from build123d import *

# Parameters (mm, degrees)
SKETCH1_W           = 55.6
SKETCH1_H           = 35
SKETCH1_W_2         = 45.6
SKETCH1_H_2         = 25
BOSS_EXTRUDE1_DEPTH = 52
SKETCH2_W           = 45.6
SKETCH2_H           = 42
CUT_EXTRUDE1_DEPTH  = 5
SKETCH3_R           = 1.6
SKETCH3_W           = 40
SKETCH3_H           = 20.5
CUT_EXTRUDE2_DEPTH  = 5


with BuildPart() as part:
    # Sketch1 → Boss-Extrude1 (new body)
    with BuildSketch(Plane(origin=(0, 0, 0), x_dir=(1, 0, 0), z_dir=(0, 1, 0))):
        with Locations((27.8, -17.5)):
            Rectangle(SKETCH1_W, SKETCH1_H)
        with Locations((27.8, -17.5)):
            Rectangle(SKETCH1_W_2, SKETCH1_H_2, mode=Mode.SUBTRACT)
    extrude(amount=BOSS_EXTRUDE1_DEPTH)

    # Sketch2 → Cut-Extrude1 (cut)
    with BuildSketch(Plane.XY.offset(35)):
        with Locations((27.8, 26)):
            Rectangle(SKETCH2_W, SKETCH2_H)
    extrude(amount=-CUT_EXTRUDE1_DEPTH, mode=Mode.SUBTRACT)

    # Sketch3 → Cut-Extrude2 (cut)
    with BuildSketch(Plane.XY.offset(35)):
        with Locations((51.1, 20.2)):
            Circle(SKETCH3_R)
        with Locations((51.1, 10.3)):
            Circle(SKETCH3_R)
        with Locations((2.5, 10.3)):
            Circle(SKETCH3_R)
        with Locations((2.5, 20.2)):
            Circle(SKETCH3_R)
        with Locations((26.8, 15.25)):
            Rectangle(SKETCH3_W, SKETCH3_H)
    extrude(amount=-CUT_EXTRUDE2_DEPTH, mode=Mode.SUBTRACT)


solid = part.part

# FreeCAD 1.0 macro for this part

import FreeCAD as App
import Part
import Sketcher

doc = App.newDocument("Part")
params = doc.addObject("Spreadsheet::Sheet", "Params")
for row, (alias, value) in enumerate([
    ("sketch1_height", "35 mm"),
    ("sketch1_height2", "25 mm"),
    ("sketch1_width", "55.6 mm"),
    ("sketch1_width2", "45.6 mm"),
    ("pad1_length", "52 mm"),
    ("sketch2_height", "42 mm"),
    ("sketch2_width", "45.6 mm"),
    ("pocket1_length", "5 mm"),
    ("sketch3_diameter", "3.2 mm"),
    ("sketch3_width", "40 mm"),
    ("sketch3_height", "20.5 mm"),
    ("pocket2_length", "5 mm"),
], start=1):
    params.set(f"A{row}", alias)
    params.set(f"B{row}", "=" + value)
    params.setAlias(f"B{row}", alias)

body = doc.addObject("PartDesign::Body", "Body")

# Sketch on XZ plane
sketch1 = body.newObject("Sketcher::SketchObject", "Sketch")
sketch1.AttachmentSupport = (doc.getObject("XZ_Plane"), [""])
sketch1.MapMode = "FlatFace"
sketch1.addGeometry(Part.LineSegment(App.Vector(0, 0, 0), App.Vector(0, 35, 0)), False)
sketch1.addGeometry(Part.LineSegment(App.Vector(0, 35, 0), App.Vector(56, 35, 0)), False)
sketch1.addGeometry(Part.LineSegment(App.Vector(56, 35, 0), App.Vector(56, 0, 0)), False)
sketch1.addGeometry(Part.LineSegment(App.Vector(56, 0, 0), App.Vector(0, 0, 0)), False)
sketch1.addGeometry(Part.LineSegment(App.Vector(51, 30, 0), App.Vector(5, 30, 0)), False)
sketch1.addGeometry(Part.LineSegment(App.Vector(5, 30, 0), App.Vector(5, 5, 0)), False)
sketch1.addGeometry(Part.LineSegment(App.Vector(5, 5, 0), App.Vector(51, 5, 0)), False)
sketch1.addGeometry(Part.LineSegment(App.Vector(51, 5, 0), App.Vector(51, 30, 0)), False)
sketch1.addConstraint(Sketcher.Constraint("Coincident", 0, 2, 1, 1))
sketch1.addConstraint(Sketcher.Constraint("Coincident", 1, 2, 2, 1))
sketch1.addConstraint(Sketcher.Constraint("Coincident", 2, 2, 3, 1))
sketch1.addConstraint(Sketcher.Constraint("Coincident", 3, 2, 0, 1))
sketch1.addConstraint(Sketcher.Constraint("Coincident", 4, 2, 5, 1))
sketch1.addConstraint(Sketcher.Constraint("Coincident", 5, 2, 6, 1))
sketch1.addConstraint(Sketcher.Constraint("Coincident", 6, 2, 7, 1))
sketch1.addConstraint(Sketcher.Constraint("Coincident", 7, 2, 4, 1))
sketch1.addConstraint(Sketcher.Constraint("Vertical", 0))
sketch1.addConstraint(Sketcher.Constraint("Horizontal", 1))
sketch1.addConstraint(Sketcher.Constraint("Vertical", 2))
sketch1.addConstraint(Sketcher.Constraint("Horizontal", 3))
sketch1.addConstraint(Sketcher.Constraint("Horizontal", 4))
sketch1.addConstraint(Sketcher.Constraint("Vertical", 5))
sketch1.addConstraint(Sketcher.Constraint("Horizontal", 6))
sketch1.addConstraint(Sketcher.Constraint("Vertical", 7))
sketch1.addConstraint(Sketcher.Constraint("Coincident", 3, 2, -1, 1))
sketch1.addConstraint(Sketcher.Constraint("DistanceY", 0, 1, 0, 2, 35.0))
sketch1.addConstraint(Sketcher.Constraint("DistanceY", 5, 2, 5, 1, 25.0))
sketch1.addConstraint(Sketcher.Constraint("DistanceX", 1, 1, 1, 2, 55.6))
sketch1.addConstraint(Sketcher.Constraint("DistanceX", 4, 2, 4, 1, 45.6))
sketch1.addConstraint(Sketcher.Constraint("DistanceX", -1, 1, 4, 2, 5.0))
sketch1.addConstraint(Sketcher.Constraint("DistanceY", -1, 1, 4, 2, 30.0))
sketch1.setExpression("Constraints[17]", "Params.sketch1_height")
sketch1.setExpression("Constraints[18]", "Params.sketch1_height2")
sketch1.setExpression("Constraints[19]", "Params.sketch1_width")
sketch1.setExpression("Constraints[20]", "Params.sketch1_width2")
pad1 = body.newObject("PartDesign::Pad", "Pad")
pad1.Profile = sketch1
pad1.setExpression("Length", "Params.pad1_length")
pad1.Reversed = True

# Sketch on XY plane
sketch2 = body.newObject("Sketcher::SketchObject", "Sketch001")
sketch2.AttachmentSupport = (doc.getObject("XY_Plane"), [""])
sketch2.MapMode = "FlatFace"
sketch2.AttachmentOffset = App.Placement(App.Vector(0, 0, 35), App.Rotation())
sketch2.addGeometry(Part.LineSegment(App.Vector(5, 47, 0), App.Vector(5, 5, 0)), False)
sketch2.addGeometry(Part.LineSegment(App.Vector(5, 5, 0), App.Vector(51, 5, 0)), False)
sketch2.addGeometry(Part.LineSegment(App.Vector(51, 5, 0), App.Vector(51, 47, 0)), False)
sketch2.addGeometry(Part.LineSegment(App.Vector(51, 47, 0), App.Vector(5, 47, 0)), False)
sketch2.addConstraint(Sketcher.Constraint("Coincident", 0, 2, 1, 1))
sketch2.addConstraint(Sketcher.Constraint("Coincident", 1, 2, 2, 1))
sketch2.addConstraint(Sketcher.Constraint("Coincident", 2, 2, 3, 1))
sketch2.addConstraint(Sketcher.Constraint("Coincident", 3, 2, 0, 1))
sketch2.addConstraint(Sketcher.Constraint("Vertical", 0))
sketch2.addConstraint(Sketcher.Constraint("Horizontal", 1))
sketch2.addConstraint(Sketcher.Constraint("Vertical", 2))
sketch2.addConstraint(Sketcher.Constraint("Horizontal", 3))
sketch2.addConstraint(Sketcher.Constraint("DistanceY", 0, 2, 0, 1, 42.0))
sketch2.addConstraint(Sketcher.Constraint("DistanceX", 1, 1, 1, 2, 45.6))
sketch2.addConstraint(Sketcher.Constraint("DistanceX", -1, 1, 0, 2, 5.0))
sketch2.addConstraint(Sketcher.Constraint("DistanceY", -1, 1, 0, 2, 5.0))
sketch2.setExpression("Constraints[8]", "Params.sketch2_height")
sketch2.setExpression("Constraints[9]", "Params.sketch2_width")
pocket1 = body.newObject("PartDesign::Pocket", "Pocket")
pocket1.Profile = sketch2
pocket1.setExpression("Length", "Params.pocket1_length")

# Sketch on XY plane
sketch3 = body.newObject("Sketcher::SketchObject", "Sketch002")
sketch3.AttachmentSupport = (doc.getObject("XY_Plane"), [""])
sketch3.MapMode = "FlatFace"
sketch3.AttachmentOffset = App.Placement(App.Vector(0, 0, 35), App.Rotation())
sketch3.addGeometry(Part.Circle(App.Vector(51.1, 20.2, 0), App.Vector(0, 0, 1), 1.6), False)
sketch3.addGeometry(Part.Circle(App.Vector(51.1, 10.3, 0), App.Vector(0, 0, 1), 1.6), False)
sketch3.addGeometry(Part.Circle(App.Vector(2.5, 10.3, 0), App.Vector(0, 0, 1), 1.6), False)
sketch3.addGeometry(Part.Circle(App.Vector(2.5, 20.2, 0), App.Vector(0, 0, 1), 1.6), False)
sketch3.addGeometry(Part.LineSegment(App.Vector(6.8, 25.5, 0), App.Vector(6.8, 5, 0)), False)
sketch3.addGeometry(Part.LineSegment(App.Vector(6.8, 5, 0), App.Vector(46.8, 5, 0)), False)
sketch3.addGeometry(Part.LineSegment(App.Vector(46.8, 5, 0), App.Vector(46.8, 25.5, 0)), False)
sketch3.addGeometry(Part.LineSegment(App.Vector(46.8, 25.5, 0), App.Vector(6.8, 25.5, 0)), False)
sketch3.addConstraint(Sketcher.Constraint("Coincident", 4, 2, 5, 1))
sketch3.addConstraint(Sketcher.Constraint("Coincident", 5, 2, 6, 1))
sketch3.addConstraint(Sketcher.Constraint("Coincident", 6, 2, 7, 1))
sketch3.addConstraint(Sketcher.Constraint("Coincident", 7, 2, 4, 1))
sketch3.addConstraint(Sketcher.Constraint("Vertical", 4))
sketch3.addConstraint(Sketcher.Constraint("Horizontal", 5))
sketch3.addConstraint(Sketcher.Constraint("Vertical", 6))
sketch3.addConstraint(Sketcher.Constraint("Horizontal", 7))
sketch3.addConstraint(Sketcher.Constraint("Equal", 0, 1))
sketch3.addConstraint(Sketcher.Constraint("Equal", 1, 2))
sketch3.addConstraint(Sketcher.Constraint("Equal", 2, 3))
sketch3.addConstraint(Sketcher.Constraint("Horizontal", 1, 3, 2, 3))
sketch3.addConstraint(Sketcher.Constraint("Horizontal", 0, 3, 3, 3))
sketch3.addConstraint(Sketcher.Constraint("Vertical", 0, 3, 1, 3))
sketch3.addConstraint(Sketcher.Constraint("Vertical", 2, 3, 3, 3))
sketch3.addConstraint(Sketcher.Constraint("Diameter", 0, 3.2))
sketch3.addConstraint(Sketcher.Constraint("DistanceX", 5, 1, 5, 2, 40.0))
sketch3.addConstraint(Sketcher.Constraint("DistanceY", 4, 2, 4, 1, 20.5))
sketch3.addConstraint(Sketcher.Constraint("DistanceY", -1, 1, 4, 2, 5.0))
sketch3.addConstraint(Sketcher.Constraint("DistanceX", -1, 1, 0, 3, 51.1))
sketch3.addConstraint(Sketcher.Constraint("DistanceY", -1, 1, 0, 3, 20.2))
sketch3.addConstraint(Sketcher.Constraint("DistanceY", -1, 1, 1, 3, 10.3))
sketch3.addConstraint(Sketcher.Constraint("DistanceX", -1, 1, 2, 3, 2.5))
sketch3.addConstraint(Sketcher.Constraint("DistanceX", -1, 1, 4, 2, 6.8))
sketch3.setExpression("Constraints[15]", "Params.sketch3_diameter")
sketch3.setExpression("Constraints[16]", "Params.sketch3_width")
sketch3.setExpression("Constraints[17]", "Params.sketch3_height")
pocket2 = body.newObject("PartDesign::Pocket", "Pocket001")
pocket2.Profile = sketch3
pocket2.setExpression("Length", "Params.pocket2_length")

doc.recompute()
